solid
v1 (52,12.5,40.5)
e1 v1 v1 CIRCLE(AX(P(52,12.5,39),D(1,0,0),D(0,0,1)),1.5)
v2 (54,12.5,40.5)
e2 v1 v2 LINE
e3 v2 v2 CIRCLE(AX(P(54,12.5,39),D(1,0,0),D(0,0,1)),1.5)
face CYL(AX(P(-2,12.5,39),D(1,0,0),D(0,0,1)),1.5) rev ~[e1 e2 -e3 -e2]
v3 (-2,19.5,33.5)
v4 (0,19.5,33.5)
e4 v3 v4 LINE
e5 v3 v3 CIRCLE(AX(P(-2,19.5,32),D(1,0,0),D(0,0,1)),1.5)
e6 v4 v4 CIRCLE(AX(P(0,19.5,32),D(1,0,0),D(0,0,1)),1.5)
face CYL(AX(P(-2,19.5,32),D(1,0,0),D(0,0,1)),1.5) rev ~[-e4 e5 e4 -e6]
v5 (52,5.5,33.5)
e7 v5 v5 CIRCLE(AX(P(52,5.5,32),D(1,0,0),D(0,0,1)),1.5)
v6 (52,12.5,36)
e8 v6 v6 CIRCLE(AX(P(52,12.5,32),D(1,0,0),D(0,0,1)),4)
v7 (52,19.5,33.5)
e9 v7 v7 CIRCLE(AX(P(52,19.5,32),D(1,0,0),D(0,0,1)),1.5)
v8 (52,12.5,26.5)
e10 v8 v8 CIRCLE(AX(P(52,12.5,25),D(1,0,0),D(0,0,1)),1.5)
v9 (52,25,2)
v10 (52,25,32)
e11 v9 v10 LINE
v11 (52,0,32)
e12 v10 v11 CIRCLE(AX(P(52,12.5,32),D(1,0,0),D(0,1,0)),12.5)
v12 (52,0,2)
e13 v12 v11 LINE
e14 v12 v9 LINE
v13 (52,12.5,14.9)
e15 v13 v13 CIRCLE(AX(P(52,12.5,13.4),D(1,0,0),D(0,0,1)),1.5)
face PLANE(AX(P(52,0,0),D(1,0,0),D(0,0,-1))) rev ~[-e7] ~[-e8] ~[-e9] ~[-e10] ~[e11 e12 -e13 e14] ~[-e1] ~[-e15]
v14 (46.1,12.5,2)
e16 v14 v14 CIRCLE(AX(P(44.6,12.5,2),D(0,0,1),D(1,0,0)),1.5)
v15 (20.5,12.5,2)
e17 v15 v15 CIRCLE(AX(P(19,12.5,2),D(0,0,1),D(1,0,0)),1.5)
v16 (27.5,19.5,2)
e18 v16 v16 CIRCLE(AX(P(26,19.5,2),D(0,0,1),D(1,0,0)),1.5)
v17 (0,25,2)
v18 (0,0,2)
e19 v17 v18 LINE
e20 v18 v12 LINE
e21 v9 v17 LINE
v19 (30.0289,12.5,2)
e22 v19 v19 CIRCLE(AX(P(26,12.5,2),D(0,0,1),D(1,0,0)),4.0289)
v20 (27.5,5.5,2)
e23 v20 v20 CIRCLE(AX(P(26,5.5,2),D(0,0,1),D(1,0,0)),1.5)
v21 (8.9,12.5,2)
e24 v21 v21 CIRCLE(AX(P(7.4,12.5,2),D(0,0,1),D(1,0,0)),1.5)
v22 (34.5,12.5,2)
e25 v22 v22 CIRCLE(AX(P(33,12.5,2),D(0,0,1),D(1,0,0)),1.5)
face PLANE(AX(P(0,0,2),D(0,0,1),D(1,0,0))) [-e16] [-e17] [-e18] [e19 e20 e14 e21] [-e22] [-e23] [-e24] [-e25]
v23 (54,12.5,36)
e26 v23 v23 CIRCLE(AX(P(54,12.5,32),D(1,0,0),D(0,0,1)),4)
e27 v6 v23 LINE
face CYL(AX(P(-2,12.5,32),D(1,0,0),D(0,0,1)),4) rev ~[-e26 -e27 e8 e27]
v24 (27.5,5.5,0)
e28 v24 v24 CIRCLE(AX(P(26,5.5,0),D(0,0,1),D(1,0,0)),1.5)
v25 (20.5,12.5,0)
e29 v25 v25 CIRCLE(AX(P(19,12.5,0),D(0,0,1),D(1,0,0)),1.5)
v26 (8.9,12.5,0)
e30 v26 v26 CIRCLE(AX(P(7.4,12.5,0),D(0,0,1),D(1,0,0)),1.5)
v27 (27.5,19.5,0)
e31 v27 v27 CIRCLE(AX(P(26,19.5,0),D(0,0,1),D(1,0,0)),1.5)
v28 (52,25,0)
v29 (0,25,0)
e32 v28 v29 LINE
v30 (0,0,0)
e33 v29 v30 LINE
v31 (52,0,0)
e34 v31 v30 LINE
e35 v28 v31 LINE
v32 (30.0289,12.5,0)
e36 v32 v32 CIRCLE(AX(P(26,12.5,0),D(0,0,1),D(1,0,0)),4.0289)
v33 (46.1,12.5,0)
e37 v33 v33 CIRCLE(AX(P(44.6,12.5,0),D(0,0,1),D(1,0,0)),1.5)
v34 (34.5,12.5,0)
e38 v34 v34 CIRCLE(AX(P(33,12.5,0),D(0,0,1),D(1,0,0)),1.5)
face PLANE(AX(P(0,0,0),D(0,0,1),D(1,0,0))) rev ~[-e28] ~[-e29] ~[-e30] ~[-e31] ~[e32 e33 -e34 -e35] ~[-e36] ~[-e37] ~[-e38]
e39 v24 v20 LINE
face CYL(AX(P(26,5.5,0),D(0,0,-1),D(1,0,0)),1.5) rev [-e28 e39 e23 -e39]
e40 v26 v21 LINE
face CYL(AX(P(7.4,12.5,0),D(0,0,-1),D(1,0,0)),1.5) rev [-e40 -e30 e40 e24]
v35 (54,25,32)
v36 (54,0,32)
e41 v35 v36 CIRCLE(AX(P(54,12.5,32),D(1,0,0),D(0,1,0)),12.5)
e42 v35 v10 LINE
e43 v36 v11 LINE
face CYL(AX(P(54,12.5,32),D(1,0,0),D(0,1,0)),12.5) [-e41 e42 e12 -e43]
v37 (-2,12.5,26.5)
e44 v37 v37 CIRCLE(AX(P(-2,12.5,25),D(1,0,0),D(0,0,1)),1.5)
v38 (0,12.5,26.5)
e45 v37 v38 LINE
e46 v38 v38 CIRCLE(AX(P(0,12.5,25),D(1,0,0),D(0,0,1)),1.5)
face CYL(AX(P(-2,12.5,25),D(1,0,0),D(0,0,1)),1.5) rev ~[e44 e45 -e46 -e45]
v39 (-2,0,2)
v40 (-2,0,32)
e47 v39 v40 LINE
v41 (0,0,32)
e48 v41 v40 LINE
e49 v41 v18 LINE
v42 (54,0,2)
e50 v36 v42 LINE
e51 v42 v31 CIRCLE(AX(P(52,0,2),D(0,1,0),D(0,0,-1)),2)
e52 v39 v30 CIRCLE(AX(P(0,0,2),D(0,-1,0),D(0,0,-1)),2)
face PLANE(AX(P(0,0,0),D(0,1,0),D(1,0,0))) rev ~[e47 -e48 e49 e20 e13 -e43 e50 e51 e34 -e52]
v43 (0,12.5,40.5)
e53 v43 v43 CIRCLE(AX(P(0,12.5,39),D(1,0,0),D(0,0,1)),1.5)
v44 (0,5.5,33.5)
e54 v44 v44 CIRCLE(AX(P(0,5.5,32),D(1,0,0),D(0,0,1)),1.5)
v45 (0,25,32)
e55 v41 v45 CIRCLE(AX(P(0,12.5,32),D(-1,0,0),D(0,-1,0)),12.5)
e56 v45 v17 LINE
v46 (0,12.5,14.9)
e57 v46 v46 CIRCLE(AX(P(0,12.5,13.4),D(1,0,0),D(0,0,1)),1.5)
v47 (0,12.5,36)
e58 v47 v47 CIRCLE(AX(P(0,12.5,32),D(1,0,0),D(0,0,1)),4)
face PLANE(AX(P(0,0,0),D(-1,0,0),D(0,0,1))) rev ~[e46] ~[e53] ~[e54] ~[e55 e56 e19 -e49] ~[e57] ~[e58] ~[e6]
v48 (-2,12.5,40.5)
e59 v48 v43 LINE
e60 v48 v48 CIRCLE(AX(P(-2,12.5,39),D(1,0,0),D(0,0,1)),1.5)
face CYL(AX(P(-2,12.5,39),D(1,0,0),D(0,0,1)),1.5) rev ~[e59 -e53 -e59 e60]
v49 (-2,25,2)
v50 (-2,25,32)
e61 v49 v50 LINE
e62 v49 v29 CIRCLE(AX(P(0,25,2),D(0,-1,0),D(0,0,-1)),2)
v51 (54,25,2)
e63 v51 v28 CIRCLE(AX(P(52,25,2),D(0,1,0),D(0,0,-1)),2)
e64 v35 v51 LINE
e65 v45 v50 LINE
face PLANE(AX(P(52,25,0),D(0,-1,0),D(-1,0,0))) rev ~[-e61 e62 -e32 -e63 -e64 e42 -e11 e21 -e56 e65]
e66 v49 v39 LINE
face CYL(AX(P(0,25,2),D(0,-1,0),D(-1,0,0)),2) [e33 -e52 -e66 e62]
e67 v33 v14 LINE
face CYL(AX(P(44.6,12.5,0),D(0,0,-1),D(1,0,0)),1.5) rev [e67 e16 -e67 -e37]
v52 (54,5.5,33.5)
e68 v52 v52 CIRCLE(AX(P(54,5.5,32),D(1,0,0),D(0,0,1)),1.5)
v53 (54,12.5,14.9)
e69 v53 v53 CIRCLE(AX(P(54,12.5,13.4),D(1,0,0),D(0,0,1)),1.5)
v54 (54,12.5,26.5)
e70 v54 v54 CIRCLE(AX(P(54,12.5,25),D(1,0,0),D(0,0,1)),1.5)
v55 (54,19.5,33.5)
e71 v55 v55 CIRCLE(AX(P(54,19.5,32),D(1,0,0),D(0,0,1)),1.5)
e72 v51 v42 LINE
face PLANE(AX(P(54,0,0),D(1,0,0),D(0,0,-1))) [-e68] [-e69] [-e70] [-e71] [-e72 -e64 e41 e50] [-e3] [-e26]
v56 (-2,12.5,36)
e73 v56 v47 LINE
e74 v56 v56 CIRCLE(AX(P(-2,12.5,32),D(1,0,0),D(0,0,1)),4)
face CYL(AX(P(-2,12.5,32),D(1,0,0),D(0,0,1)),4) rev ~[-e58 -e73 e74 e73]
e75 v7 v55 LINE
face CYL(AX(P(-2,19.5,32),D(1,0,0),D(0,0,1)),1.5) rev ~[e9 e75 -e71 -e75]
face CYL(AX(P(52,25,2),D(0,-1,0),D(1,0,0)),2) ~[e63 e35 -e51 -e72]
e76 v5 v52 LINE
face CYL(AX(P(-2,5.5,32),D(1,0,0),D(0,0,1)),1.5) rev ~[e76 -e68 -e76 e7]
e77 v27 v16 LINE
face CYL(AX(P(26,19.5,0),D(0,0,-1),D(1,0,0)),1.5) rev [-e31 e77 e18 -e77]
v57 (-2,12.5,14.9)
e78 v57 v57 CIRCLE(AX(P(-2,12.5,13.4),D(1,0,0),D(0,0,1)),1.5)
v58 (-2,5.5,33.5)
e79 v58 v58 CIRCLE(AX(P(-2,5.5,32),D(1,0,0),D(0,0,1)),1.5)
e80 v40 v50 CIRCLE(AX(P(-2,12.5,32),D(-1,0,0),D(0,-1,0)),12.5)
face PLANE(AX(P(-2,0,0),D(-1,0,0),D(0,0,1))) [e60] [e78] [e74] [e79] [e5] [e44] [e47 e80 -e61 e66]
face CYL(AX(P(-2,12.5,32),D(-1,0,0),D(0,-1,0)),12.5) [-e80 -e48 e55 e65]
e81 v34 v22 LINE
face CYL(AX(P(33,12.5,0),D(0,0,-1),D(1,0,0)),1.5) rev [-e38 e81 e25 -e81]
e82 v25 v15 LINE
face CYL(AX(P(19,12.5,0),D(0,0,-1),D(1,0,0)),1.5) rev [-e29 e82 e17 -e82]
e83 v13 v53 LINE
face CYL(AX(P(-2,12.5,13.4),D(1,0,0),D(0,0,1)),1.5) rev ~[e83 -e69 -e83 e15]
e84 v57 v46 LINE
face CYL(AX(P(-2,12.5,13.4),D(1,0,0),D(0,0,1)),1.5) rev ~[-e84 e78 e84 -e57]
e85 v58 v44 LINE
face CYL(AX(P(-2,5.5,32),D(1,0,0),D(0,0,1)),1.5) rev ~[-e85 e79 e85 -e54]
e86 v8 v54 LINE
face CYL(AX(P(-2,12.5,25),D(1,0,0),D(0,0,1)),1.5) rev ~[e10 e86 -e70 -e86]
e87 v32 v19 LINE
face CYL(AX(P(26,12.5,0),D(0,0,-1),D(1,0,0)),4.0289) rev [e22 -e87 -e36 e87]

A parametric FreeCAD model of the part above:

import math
import FreeCAD as App
import Part
import Sketcher
from FreeCAD import Vector


def edges_at(feature, points):
    """Names of the edges that pass closest to the given points."""
    edges = feature.Shape.Edges
    near = lambda p: min(range(len(edges)), key=lambda i: edges[i].distToShape(Part.Vertex(*p))[0])
    return sorted({f"Edge{near(p) + 1}" for p in points})


def add_polygon(sketch, points):
    """Adds a closed chain of lines whose ends are joined by coincident constraints."""
    first, n = sketch.GeometryCount, len(points)
    for a, b in zip(points, points[1:] + points[:1]):
        sketch.addGeometry(Part.LineSegment(App.Vector(*a, 0), App.Vector(*b, 0)), False)
    for i in range(n):
        sketch.addConstraint(Sketcher.Constraint("Coincident", first + i, 2, first + (i + 1) % n, 1))

doc = App.newDocument("Part")
body = doc.addObject("PartDesign::Body", "Body")

sketch1 = doc.addObject("Sketcher::SketchObject", "Sketch")
body.addObject(sketch1)
sketch1.AttachmentSupport = (doc.XY_Plane, [""])
sketch1.MapMode = "FlatFace"
add_polygon(sketch1, [(0, 25), (0, 0), (52, 0), (52, 25)])
sketch1.addGeometry(Part.Circle(Vector(26, 5.5, 0), Vector(0, 0, 1), 1.5), False)
sketch1.addGeometry(Part.Circle(Vector(7.4, 12.5, 0), Vector(0, 0, 1), 1.5), False)
sketch1.addGeometry(Part.Circle(Vector(19, 12.5, 0), Vector(0, 0, 1), 1.5), False)
sketch1.addGeometry(Part.Circle(Vector(26, 12.5, 0), Vector(0, 0, 1), 4), False)
sketch1.addGeometry(Part.Circle(Vector(33, 12.5, 0), Vector(0, 0, 1), 1.5), False)
sketch1.addGeometry(Part.Circle(Vector(44.6, 12.5, 0), Vector(0, 0, 1), 1.5), False)
sketch1.addGeometry(Part.Circle(Vector(26, 19.5, 0), Vector(0, 0, 1), 1.5), False)
sketch1.addConstraint(Sketcher.Constraint("Vertical", 0))
sketch1.addConstraint(Sketcher.Constraint("Horizontal", 1))
sketch1.addConstraint(Sketcher.Constraint("Vertical", 2))
sketch1.addConstraint(Sketcher.Constraint("Horizontal", 3))
sketch1.addConstraint(Sketcher.Constraint("Coincident", 0, 2, -1, 1))
sketch1.addConstraint(Sketcher.Constraint("Equal", 4, 5))
sketch1.addConstraint(Sketcher.Constraint("Equal", 5, 6))
sketch1.addConstraint(Sketcher.Constraint("Equal", 6, 8))
sketch1.addConstraint(Sketcher.Constraint("Equal", 8, 9))
sketch1.addConstraint(Sketcher.Constraint("Equal", 9, 10))
sketch1.addConstraint(Sketcher.Constraint("Horizontal", 5, 3, 6, 3))
sketch1.addConstraint(Sketcher.Constraint("Horizontal", 6, 3, 7, 3))
sketch1.addConstraint(Sketcher.Constraint("Horizontal", 7, 3, 8, 3))
sketch1.addConstraint(Sketcher.Constraint("Horizontal", 8, 3, 9, 3))
sketch1.addConstraint(Sketcher.Constraint("Vertical", 4, 3, 7, 3))
sketch1.addConstraint(Sketcher.Constraint("Vertical", 7, 3, 10, 3))
sketch1.addConstraint(Sketcher.Constraint("Diameter", 4, 3.0))
sketch1.addConstraint(Sketcher.Constraint("DistanceX", 1, 1, 1, 2, 52.0))
sketch1.addConstraint(Sketcher.Constraint("DistanceY", 0, 2, 0, 1, 25.0))
sketch1.addConstraint(Sketcher.Constraint("DistanceX", -1, 1, 4, 3, 26.0))
sketch1.addConstraint(Sketcher.Constraint("DistanceX", -1, 1, 5, 3, 7.4))
sketch1.addConstraint(Sketcher.Constraint("DistanceX", 9, 3, 1, 2, 7.4))
sketch1.addConstraint(Sketcher.Constraint("DistanceX", -1, 1, 6, 3, 19.0))
sketch1.addConstraint(Sketcher.Constraint("DistanceX", -1, 1, 8, 3, 33.0))
sketch1.addConstraint(Sketcher.Constraint("DistanceY", 4, 3, 5, 3, 7.0))
sketch1.addConstraint(Sketcher.Constraint("DistanceY", 7, 3, 10, 3, 7.0))
sketch1.addConstraint(Sketcher.Constraint("Diameter", 7, 8.0578))
sketch1.addConstraint(Sketcher.Constraint("DistanceY", -1, 1, 4, 3, 5.5))
pad1 = doc.addObject("PartDesign::Pad", "Pad")
body.addObject(pad1)
pad1.Profile = sketch1
pad1.Length = 2

sketch2 = doc.addObject("Sketcher::SketchObject", "Sketch001")
body.addObject(sketch2)
sketch2.AttachmentSupport = (doc.XY_Plane, [""])
sketch2.MapMode = "FlatFace"
add_polygon(sketch2, [(-2, 0), (0, 0), (0, 25), (-2, 25)])
add_polygon(sketch2, [(52, 25), (52, 0), (54, 0), (54, 25)])
sketch2.addConstraint(Sketcher.Constraint("Horizontal", 0))
sketch2.addConstraint(Sketcher.Constraint("Vertical", 1))
sketch2.addConstraint(Sketcher.Constraint("Horizontal", 2))
sketch2.addConstraint(Sketcher.Constraint("Vertical", 3))
sketch2.addConstraint(Sketcher.Constraint("Vertical", 4))
sketch2.addConstraint(Sketcher.Constraint("Horizontal", 5))
sketch2.addConstraint(Sketcher.Constraint("Vertical", 6))
sketch2.addConstraint(Sketcher.Constraint("Horizontal", 7))
sketch2.addConstraint(Sketcher.Constraint("Coincident", 0, 2, -1, 1))
sketch2.addConstraint(Sketcher.Constraint("PointOnObject", 4, 2, -1))
sketch2.addConstraint(Sketcher.Constraint("Horizontal", 2, 2, 6, 2))
sketch2.addConstraint(Sketcher.Constraint("Equal", 2, 5))
sketch2.addConstraint(Sketcher.Constraint("DistanceX", 0, 1, 0, 2, 2.0))
sketch2.addConstraint(Sketcher.Constraint("DistanceY", 1, 1, 1, 2, 25.0))
sketch2.addConstraint(Sketcher.Constraint("DistanceX", -1, 1, 4, 2, 52.0))
pad2 = doc.addObject("PartDesign::Pad", "Pad001")
body.addObject(pad2)
pad2.Profile = sketch2
pad2.Length = 3

sketch3 = doc.addObject("Sketcher::SketchObject", "Sketch002")
body.addObject(sketch3)
sketch3.AttachmentSupport = (doc.XY_Plane, [""])
sketch3.MapMode = "FlatFace"
sketch3.AttachmentOffset = App.Placement(Vector(0, 0, 3), App.Rotation())
add_polygon(sketch3, [(54, 0), (54, 25), (52, 25), (52, 0)])
add_polygon(sketch3, [(0, 0), (0, 25), (-2, 25), (-2, 0)])
sketch3.addConstraint(Sketcher.Constraint("Vertical", 0))
sketch3.addConstraint(Sketcher.Constraint("Horizontal", 1))
sketch3.addConstraint(Sketcher.Constraint("Vertical", 2))
sketch3.addConstraint(Sketcher.Constraint("Horizontal", 3))
sketch3.addConstraint(Sketcher.Constraint("Vertical", 4))
sketch3.addConstraint(Sketcher.Constraint("Horizontal", 5))
sketch3.addConstraint(Sketcher.Constraint("Vertical", 6))
sketch3.addConstraint(Sketcher.Constraint("Horizontal", 7))
sketch3.addConstraint(Sketcher.Constraint("Coincident", 7, 2, -1, 1))
sketch3.addConstraint(Sketcher.Constraint("PointOnObject", 2, 2, -1))
sketch3.addConstraint(Sketcher.Constraint("Horizontal", 1, 2, 4, 2))
sketch3.addConstraint(Sketcher.Constraint("Equal", 3, 5))
sketch3.addConstraint(Sketcher.Constraint("DistanceX", 1, 2, 1, 1, 2.0))
sketch3.addConstraint(Sketcher.Constraint("DistanceY", 0, 1, 0, 2, 25.0))
sketch3.addConstraint(Sketcher.Constraint("DistanceX", -1, 1, 0, 2, 54.0))
pad3 = doc.addObject("PartDesign::Pad", "Pad002")
body.addObject(pad3)
pad3.Profile = sketch3
pad3.Length = 29

sketch4 = doc.addObject("Sketcher::SketchObject", "Sketch003")
body.addObject(sketch4)
sketch4.AttachmentSupport = (doc.YZ_Plane, [""])
sketch4.MapMode = "FlatFace"
sketch4.AttachmentOffset = App.Placement(Vector(0, 0, 54), App.Rotation())
sketch4.addGeometry(Part.ArcOfCircle(Part.Circle(Vector(12, 32, 0), Vector(0, 0, 1), 12), math.radians(0), math.radians(180)), False)
sketch4.addGeometry(Part.LineSegment(Vector(0, 32, 0), Vector(25, 32, 0)), False)
sketch4.addConstraint(Sketcher.Constraint("Coincident", 0, 1, 1, 2))
sketch4.addConstraint(Sketcher.Constraint("Coincident", 1, 1, 0, 2))
sketch4.addConstraint(Sketcher.Constraint("Horizontal", 1))
sketch4.addConstraint(Sketcher.Constraint("PointOnObject", 1, 1, -2))
sketch4.addConstraint(Sketcher.Constraint("Radius", 0, 12.5))
sketch4.addConstraint(Sketcher.Constraint("DistanceY", -1, 1, 0, 3, 32.0))
sketch4.addConstraint(Sketcher.Constraint("DistanceY", -1, 1, 0, 1, 32.0))
pad4 = doc.addObject("PartDesign::Pad", "Pad003")
body.addObject(pad4)
pad4.Profile = sketch4
pad4.Length = 2
pad4.Reversed = True

sketch5 = doc.addObject("Sketcher::SketchObject", "Sketch004")
body.addObject(sketch5)
sketch5.AttachmentSupport = (doc.YZ_Plane, [""])
sketch5.MapMode = "FlatFace"
sketch5.AttachmentOffset = App.Placement(Vector(0, 0, -2), App.Rotation())
sketch5.addGeometry(Part.LineSegment(Vector(25, 32, 0), Vector(0, 32, 0)), False)
sketch5.addGeometry(Part.ArcOfCircle(Part.Circle(Vector(12, 32, 0), Vector(0, 0, 1), 12), math.radians(0), math.radians(180)), False)
sketch5.addConstraint(Sketcher.Constraint("Coincident", 0, 1, 1, 1))
sketch5.addConstraint(Sketcher.Constraint("Coincident", 1, 2, 0, 2))
sketch5.addConstraint(Sketcher.Constraint("Horizontal", 0))
sketch5.addConstraint(Sketcher.Constraint("PointOnObject", 1, 2, -2))
sketch5.addConstraint(Sketcher.Constraint("Horizontal", 1, 3, 0, 1))
sketch5.addConstraint(Sketcher.Constraint("Radius", 1, 12.5))
sketch5.addConstraint(Sketcher.Constraint("DistanceY", -1, 1, 1, 3, 32.0))
pad5 = doc.addObject("PartDesign::Pad", "Pad004")
body.addObject(pad5)
pad5.Profile = sketch5
pad5.Length = 2
doc.recompute()

fillet = doc.addObject("PartDesign::Fillet", "Fillet")
body.addObject(fillet)
fillet.Base = (pad5, edges_at(pad5, [(54, 12.5, 0), (-2, 12.5, 0)]))
fillet.Radius = 2

sketch6 = doc.addObject("Sketcher::SketchObject", "Sketch005")
body.addObject(sketch6)
sketch6.AttachmentSupport = (doc.YZ_Plane, [""])
sketch6.MapMode = "FlatFace"
sketch6.AttachmentOffset = App.Placement(Vector(0, 0, -2), App.Rotation())
sketch6.addGeometry(Part.Circle(Vector(12.5, 32, 0), Vector(0, 0, 1), 1.5), False)
sketch6.addGeometry(Part.Circle(Vector(12.5, 25, 0), Vector(0, 0, 1), 1.5), False)
sketch6.addGeometry(Part.Circle(Vector(19.5, 32, 0), Vector(0, 0, 1), 1.5), False)
sketch6.addGeometry(Part.Circle(Vector(12.5, 39, 0), Vector(0, 0, 1), 1.5), False)
sketch6.addGeometry(Part.Circle(Vector(5.5, 32, 0), Vector(0, 0, 1), 1.5), False)
sketch6.addGeometry(Part.Circle(Vector(12.5, 13.4, 0), Vector(0, 0, 1), 1.5), False)
sketch6.addConstraint(Sketcher.Constraint("Equal", 0, 1))
sketch6.addConstraint(Sketcher.Constraint("Equal", 1, 2))
sketch6.addConstraint(Sketcher.Constraint("Equal", 2, 3))
sketch6.addConstraint(Sketcher.Constraint("Equal", 3, 4))
sketch6.addConstraint(Sketcher.Constraint("Equal", 4, 5))
sketch6.addConstraint(Sketcher.Constraint("Horizontal", 0, 3, 2, 3))
sketch6.addConstraint(Sketcher.Constraint("Horizontal", 2, 3, 4, 3))
sketch6.addConstraint(Sketcher.Constraint("Vertical", 0, 3, 1, 3))
sketch6.addConstraint(Sketcher.Constraint("Vertical", 1, 3, 3, 3))
sketch6.addConstraint(Sketcher.Constraint("Vertical", 3, 3, 5, 3))
sketch6.addConstraint(Sketcher.Constraint("Diameter", 0, 3.0))
sketch6.addConstraint(Sketcher.Constraint("DistanceY", -1, 1, 0, 3, 32.0))
sketch6.addConstraint(Sketcher.Constraint("DistanceY", -1, 1, 1, 3, 25.0))
sketch6.addConstraint(Sketcher.Constraint("DistanceY", -1, 1, 3, 3, 39.0))
sketch6.addConstraint(Sketcher.Constraint("DistanceX", 0, 3, 2, 3, 7.0))
sketch6.addConstraint(Sketcher.Constraint("DistanceX", 4, 3, 0, 3, 7.0))
sketch6.addConstraint(Sketcher.Constraint("DistanceX", -1, 1, 0, 3, 12.5))
sketch6.addConstraint(Sketcher.Constraint("DistanceY", -1, 1, 5, 3, 13.4))
doc.recompute()
hole = doc.addObject("PartDesign::Hole", "Hole")
body.addObject(hole)
hole.Profile = sketch6
hole.ThreadType = "None"
hole.Diameter = 3
hole.DepthType = "ThroughAll"
hole.Reversed = True

sketch7 = doc.addObject("Sketcher::SketchObject", "Sketch006")
body.addObject(sketch7)
sketch7.AttachmentSupport = (doc.YZ_Plane, [""])
sketch7.MapMode = "FlatFace"
sketch7.AttachmentOffset = App.Placement(Vector(0, 0, -2), App.Rotation())
sketch7.addGeometry(Part.Circle(Vector(12.5, 32, 0), Vector(0, 0, 1), 4), False)
sketch7.addConstraint(Sketcher.Constraint("Diameter", 0, 8.0))
sketch7.addConstraint(Sketcher.Constraint("DistanceY", -1, 1, 0, 3, 32.0))
sketch7.addConstraint(Sketcher.Constraint("DistanceX", -1, 1, 0, 3, 12.5))
doc.recompute()
hole2 = doc.addObject("PartDesign::Hole", "Hole001")
body.addObject(hole2)
hole2.Profile = sketch7
hole2.ThreadType = "None"
hole2.Diameter = 8
hole2.DepthType = "ThroughAll"
hole2.Reversed = True

doc.recompute()
